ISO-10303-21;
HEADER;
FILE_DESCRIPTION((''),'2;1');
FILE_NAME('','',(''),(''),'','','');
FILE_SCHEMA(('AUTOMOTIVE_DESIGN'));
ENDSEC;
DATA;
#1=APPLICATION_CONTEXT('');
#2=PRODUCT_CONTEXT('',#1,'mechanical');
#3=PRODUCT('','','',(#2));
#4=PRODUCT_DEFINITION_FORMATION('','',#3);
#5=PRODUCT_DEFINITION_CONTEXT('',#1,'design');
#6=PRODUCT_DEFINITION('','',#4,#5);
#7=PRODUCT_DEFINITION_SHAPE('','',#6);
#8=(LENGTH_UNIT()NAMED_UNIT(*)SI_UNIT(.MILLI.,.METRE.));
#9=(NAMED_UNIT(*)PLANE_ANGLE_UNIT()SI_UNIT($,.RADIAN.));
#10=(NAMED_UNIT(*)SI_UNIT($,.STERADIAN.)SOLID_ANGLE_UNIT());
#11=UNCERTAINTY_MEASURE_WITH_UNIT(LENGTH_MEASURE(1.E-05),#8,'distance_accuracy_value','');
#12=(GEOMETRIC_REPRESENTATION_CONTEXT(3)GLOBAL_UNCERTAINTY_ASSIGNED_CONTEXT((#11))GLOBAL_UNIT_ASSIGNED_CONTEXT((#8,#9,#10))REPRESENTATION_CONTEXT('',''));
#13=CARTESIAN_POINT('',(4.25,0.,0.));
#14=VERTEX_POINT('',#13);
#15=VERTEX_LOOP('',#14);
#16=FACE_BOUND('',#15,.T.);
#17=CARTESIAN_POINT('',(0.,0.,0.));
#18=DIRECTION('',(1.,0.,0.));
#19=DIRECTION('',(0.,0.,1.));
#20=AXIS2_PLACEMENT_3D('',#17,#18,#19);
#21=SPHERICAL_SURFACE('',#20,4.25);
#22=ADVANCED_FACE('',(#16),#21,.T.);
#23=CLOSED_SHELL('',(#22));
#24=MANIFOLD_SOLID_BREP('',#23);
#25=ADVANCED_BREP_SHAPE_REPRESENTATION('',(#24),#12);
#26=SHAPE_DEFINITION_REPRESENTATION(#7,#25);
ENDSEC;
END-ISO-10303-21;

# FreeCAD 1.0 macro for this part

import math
import FreeCAD as App
import Part
import Sketcher

doc = App.newDocument("Part")
body = doc.addObject("PartDesign::Body", "Body")

# Sketch on XZ plane
sketch1 = body.newObject("Sketcher::SketchObject", "Sketch")
sketch1.AttachmentSupport = (doc.getObject("XZ_Plane"), [""])
sketch1.MapMode = "FlatFace"
sketch1.addGeometry(Part.LineSegment(App.Vector(4.2, 0, 0), App.Vector(-4.2, 0, 0)), False)
sketch1.addGeometry(Part.ArcOfCircle(Part.Circle(App.Vector(0, 0, 0), App.Vector(0, 0, 1), 4.2), math.radians(0), math.radians(180)), False)
sketch1.addConstraint(Sketcher.Constraint("Coincident", 0, 1, 1, 1))
sketch1.addConstraint(Sketcher.Constraint("Coincident", 1, 2, 0, 2))
sketch1.addConstraint(Sketcher.Constraint("Horizontal", 0))
sketch1.addConstraint(Sketcher.Constraint("Coincident", 1, 3, -1, 1))
sketch1.addConstraint(Sketcher.Constraint("PointOnObject", 0, 1, -1))
sketch1.addConstraint(Sketcher.Constraint("Radius", 1, 4.25))
revolution = body.newObject("PartDesign::Revolution", "Revolution")
revolution.Profile = sketch1
revolution.ReferenceAxis = (sketch1, ["H_Axis"])
revolution.Angle = 360

doc.recompute()
